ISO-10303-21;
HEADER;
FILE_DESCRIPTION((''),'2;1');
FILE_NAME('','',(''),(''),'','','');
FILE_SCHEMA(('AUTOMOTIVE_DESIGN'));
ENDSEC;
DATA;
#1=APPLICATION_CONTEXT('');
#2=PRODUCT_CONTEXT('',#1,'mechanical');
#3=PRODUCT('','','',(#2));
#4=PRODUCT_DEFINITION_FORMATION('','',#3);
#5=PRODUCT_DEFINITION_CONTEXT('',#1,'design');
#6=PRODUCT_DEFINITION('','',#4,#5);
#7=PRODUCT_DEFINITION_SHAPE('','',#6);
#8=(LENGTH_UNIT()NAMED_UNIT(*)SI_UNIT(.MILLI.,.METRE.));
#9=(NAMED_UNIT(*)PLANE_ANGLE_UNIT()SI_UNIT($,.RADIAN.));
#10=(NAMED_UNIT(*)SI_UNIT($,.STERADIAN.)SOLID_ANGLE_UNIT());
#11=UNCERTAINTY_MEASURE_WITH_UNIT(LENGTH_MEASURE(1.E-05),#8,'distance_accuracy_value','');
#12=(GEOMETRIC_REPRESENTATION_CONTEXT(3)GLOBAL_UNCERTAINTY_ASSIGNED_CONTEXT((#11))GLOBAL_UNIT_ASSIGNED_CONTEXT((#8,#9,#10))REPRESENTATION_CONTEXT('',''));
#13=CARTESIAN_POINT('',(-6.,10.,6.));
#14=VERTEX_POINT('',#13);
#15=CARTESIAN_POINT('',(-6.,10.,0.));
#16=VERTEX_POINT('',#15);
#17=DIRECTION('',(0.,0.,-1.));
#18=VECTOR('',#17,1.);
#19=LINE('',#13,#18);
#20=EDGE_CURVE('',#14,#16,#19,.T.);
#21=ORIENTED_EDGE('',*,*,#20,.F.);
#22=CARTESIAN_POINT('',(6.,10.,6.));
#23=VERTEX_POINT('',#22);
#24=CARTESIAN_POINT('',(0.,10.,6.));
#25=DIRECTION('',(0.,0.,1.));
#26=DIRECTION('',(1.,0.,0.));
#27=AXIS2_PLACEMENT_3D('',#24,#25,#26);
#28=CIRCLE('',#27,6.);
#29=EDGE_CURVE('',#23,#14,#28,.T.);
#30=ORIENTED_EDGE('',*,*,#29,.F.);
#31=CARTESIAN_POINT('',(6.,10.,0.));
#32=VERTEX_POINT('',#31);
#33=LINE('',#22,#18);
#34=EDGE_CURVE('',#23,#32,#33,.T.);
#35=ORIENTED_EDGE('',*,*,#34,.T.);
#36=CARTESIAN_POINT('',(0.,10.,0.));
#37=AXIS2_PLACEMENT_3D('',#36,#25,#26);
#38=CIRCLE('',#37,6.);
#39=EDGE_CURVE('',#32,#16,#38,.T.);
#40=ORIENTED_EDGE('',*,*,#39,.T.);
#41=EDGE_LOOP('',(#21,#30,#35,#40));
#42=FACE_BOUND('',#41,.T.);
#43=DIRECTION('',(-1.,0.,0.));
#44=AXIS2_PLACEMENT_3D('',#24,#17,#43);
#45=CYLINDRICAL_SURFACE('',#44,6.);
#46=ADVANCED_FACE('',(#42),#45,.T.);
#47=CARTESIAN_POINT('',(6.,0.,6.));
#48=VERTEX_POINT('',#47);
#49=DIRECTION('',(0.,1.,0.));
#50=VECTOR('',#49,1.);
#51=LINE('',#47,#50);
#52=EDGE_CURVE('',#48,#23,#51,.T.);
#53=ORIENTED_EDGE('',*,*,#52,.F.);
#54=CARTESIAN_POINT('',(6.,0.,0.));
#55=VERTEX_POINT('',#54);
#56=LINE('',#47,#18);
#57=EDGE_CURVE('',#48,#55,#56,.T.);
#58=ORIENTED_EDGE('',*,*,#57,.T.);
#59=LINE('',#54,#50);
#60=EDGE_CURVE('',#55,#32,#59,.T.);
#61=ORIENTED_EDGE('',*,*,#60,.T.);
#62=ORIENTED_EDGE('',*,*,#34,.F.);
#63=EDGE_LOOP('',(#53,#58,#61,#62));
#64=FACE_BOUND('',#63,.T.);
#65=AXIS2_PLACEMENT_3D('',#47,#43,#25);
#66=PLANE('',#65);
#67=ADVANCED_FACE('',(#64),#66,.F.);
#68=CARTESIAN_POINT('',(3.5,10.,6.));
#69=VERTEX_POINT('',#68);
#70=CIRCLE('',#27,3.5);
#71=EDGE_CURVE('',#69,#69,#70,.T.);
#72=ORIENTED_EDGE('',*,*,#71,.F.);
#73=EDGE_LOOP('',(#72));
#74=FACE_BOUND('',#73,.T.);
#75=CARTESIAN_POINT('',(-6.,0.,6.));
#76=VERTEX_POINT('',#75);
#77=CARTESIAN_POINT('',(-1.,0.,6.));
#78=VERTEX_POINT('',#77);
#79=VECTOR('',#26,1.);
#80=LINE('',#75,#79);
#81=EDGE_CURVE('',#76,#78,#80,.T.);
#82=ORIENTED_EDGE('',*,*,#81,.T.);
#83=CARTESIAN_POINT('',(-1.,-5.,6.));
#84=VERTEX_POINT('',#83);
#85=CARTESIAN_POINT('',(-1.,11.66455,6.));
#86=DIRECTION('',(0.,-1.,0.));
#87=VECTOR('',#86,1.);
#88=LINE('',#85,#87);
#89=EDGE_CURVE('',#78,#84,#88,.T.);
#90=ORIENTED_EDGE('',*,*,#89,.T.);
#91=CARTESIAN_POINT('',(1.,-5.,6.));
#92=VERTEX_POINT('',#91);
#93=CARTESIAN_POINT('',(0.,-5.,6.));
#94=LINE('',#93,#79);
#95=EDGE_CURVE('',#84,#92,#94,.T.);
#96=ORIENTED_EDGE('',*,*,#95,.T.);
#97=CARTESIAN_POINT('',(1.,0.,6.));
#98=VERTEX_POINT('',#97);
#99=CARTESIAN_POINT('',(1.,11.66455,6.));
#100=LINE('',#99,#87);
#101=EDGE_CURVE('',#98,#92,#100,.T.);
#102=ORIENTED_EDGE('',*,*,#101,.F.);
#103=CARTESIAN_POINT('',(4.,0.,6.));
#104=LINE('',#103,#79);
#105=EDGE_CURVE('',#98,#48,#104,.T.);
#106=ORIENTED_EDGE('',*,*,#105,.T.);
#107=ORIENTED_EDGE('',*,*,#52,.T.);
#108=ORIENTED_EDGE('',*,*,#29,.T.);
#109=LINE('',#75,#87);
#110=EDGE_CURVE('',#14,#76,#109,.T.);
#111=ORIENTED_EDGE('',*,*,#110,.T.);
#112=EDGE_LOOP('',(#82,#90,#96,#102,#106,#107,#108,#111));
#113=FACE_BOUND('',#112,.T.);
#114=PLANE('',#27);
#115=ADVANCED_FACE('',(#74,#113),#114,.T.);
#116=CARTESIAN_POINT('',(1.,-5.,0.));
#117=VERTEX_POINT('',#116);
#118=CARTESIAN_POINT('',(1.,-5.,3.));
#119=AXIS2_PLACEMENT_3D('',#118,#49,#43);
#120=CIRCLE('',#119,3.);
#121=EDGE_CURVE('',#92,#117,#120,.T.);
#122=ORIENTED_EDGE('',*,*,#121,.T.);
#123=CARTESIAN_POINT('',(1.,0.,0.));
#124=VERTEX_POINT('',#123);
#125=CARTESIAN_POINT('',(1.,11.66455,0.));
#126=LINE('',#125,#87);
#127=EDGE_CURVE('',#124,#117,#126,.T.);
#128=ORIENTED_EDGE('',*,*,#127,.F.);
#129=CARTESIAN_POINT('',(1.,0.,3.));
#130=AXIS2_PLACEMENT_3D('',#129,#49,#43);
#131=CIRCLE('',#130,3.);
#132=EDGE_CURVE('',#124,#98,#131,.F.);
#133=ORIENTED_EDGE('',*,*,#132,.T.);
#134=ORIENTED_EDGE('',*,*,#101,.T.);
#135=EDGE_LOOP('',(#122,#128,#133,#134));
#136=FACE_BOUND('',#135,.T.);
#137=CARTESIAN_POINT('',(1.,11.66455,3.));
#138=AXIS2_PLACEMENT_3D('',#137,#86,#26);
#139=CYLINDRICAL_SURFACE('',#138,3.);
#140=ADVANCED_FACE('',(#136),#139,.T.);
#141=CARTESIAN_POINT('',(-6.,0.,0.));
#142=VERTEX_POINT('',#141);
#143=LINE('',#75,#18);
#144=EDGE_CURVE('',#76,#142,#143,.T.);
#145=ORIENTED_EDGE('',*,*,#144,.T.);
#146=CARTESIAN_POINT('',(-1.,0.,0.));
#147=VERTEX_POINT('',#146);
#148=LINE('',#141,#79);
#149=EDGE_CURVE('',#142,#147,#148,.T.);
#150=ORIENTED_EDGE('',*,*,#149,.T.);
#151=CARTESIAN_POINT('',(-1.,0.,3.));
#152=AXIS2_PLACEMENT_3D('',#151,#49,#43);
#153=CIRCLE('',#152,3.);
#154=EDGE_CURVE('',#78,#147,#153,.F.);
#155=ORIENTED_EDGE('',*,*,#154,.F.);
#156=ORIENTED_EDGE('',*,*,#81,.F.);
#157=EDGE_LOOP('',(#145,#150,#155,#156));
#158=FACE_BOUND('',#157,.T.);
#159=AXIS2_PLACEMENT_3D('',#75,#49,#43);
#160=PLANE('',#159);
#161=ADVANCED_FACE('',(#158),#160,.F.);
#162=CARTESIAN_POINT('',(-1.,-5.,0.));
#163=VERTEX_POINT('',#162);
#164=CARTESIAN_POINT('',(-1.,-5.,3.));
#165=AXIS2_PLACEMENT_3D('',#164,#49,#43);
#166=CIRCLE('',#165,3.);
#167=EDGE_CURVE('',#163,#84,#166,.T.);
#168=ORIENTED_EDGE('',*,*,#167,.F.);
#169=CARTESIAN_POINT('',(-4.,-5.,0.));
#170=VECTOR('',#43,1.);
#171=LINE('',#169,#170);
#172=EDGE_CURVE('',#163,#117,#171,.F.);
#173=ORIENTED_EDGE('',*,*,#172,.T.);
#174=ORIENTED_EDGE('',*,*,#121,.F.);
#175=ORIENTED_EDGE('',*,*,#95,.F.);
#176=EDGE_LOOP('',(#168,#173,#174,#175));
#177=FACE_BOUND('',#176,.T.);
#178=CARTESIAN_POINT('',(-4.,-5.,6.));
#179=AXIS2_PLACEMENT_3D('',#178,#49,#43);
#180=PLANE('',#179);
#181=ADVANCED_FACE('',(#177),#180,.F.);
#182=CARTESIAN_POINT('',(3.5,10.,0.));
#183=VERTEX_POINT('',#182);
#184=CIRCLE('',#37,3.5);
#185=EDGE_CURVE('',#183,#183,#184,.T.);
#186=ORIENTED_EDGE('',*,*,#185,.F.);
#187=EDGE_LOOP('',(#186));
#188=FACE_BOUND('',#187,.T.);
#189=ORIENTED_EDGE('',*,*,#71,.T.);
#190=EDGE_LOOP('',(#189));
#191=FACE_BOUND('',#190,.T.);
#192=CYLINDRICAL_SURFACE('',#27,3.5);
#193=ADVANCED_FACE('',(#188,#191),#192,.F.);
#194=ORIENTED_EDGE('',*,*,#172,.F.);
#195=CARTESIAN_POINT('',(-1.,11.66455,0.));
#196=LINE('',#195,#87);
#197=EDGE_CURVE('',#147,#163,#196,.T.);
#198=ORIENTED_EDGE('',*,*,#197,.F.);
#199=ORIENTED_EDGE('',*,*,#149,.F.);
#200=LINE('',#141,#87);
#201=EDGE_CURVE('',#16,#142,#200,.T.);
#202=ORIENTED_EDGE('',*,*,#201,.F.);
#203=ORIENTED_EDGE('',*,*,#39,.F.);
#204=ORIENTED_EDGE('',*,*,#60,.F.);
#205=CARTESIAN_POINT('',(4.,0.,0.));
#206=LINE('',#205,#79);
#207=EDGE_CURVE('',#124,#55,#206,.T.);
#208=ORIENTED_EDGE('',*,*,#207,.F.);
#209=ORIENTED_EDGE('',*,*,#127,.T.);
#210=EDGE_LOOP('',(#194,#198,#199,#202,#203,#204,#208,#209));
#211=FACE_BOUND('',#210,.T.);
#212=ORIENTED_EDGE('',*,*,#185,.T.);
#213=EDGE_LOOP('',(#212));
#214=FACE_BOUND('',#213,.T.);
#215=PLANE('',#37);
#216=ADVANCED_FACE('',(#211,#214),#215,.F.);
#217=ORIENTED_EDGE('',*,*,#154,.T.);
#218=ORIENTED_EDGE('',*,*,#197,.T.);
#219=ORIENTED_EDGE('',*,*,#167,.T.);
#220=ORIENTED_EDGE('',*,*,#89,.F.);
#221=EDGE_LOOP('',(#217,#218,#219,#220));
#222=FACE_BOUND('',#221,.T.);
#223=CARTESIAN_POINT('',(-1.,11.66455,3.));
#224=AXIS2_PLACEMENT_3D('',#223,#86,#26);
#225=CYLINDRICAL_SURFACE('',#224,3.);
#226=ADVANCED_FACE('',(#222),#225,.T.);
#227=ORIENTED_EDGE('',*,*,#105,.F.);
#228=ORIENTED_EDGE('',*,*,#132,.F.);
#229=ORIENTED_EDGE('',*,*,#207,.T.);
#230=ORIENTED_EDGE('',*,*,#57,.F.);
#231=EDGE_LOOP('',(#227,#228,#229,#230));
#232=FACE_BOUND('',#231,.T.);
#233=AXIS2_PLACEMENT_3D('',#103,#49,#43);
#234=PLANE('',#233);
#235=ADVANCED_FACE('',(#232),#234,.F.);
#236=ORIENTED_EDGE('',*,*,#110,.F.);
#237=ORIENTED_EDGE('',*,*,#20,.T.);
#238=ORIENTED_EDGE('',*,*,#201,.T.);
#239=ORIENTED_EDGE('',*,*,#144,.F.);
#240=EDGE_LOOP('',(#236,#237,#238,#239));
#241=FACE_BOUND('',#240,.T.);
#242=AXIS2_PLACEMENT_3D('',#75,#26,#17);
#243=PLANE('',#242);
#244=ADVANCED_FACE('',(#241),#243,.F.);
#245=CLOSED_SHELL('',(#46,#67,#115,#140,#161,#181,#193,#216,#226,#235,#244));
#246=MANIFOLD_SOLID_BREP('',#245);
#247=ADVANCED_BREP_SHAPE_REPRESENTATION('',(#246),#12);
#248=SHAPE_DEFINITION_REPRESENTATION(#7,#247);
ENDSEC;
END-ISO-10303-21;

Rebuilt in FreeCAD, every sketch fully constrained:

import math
import FreeCAD as App
import Part
import Sketcher


def add_polygon(sketch, points):
    """Adds a closed chain of lines whose ends are joined by coincident constraints."""
    first, n = sketch.GeometryCount, len(points)
    for a, b in zip(points, points[1:] + points[:1]):
        sketch.addGeometry(Part.LineSegment(App.Vector(*a, 0), App.Vector(*b, 0)), False)
    for i in range(n):
        sketch.addConstraint(Sketcher.Constraint("Coincident", first + i, 2, first + (i + 1) % n, 1))

doc = App.newDocument("Part")
body = doc.addObject("PartDesign::Body", "Body")

# Sketch on XY plane
sketch1 = body.newObject("Sketcher::SketchObject", "Sketch")
sketch1.AttachmentSupport = (doc.getObject("XY_Plane"), [""])
sketch1.MapMode = "FlatFace"
sketch1.addGeometry([
    Part.LineSegment(App.Vector(-4, -5, 0), App.Vector(4, -5, 0)),  # 0
    Part.LineSegment(App.Vector(4, -5, 0), App.Vector(4, 0, 0)),  # 1
    Part.LineSegment(App.Vector(4, 0, 0), App.Vector(6, 0, 0)),  # 2
    Part.LineSegment(App.Vector(6, 0, 0), App.Vector(6, 10, 0)),  # 3
    Part.ArcOfCircle(Part.Circle(App.Vector(0, 10, 0), App.Vector(0, 0, 1), 6), math.radians(0), math.radians(180)),  # 4
    Part.LineSegment(App.Vector(-6, 10, 0), App.Vector(-6, 0, 0)),  # 5
    Part.LineSegment(App.Vector(-6, 0, 0), App.Vector(-4, 0, 0)),  # 6
    Part.LineSegment(App.Vector(-4, 0, 0), App.Vector(-4, -5, 0)),  # 7
], False)
sketch1.addConstraint([
    Sketcher.Constraint("Coincident", 0, 2, 1, 1),
    Sketcher.Constraint("Coincident", 1, 2, 2, 1),
    Sketcher.Constraint("Coincident", 2, 2, 3, 1),
    Sketcher.Constraint("Tangent", 3, 2, 4, 1),
    Sketcher.Constraint("Tangent", 4, 2, 5, 1),
    Sketcher.Constraint("Coincident", 5, 2, 6, 1),
    Sketcher.Constraint("Coincident", 6, 2, 7, 1),
    Sketcher.Constraint("Coincident", 7, 2, 0, 1),
    Sketcher.Constraint("Horizontal", 0),
    Sketcher.Constraint("Vertical", 1),
    Sketcher.Constraint("Horizontal", 2),
    Sketcher.Constraint("Vertical", 3),
    Sketcher.Constraint("Vertical", 5),
    Sketcher.Constraint("Horizontal", 6),
    Sketcher.Constraint("Vertical", 7),
    Sketcher.Constraint("Symmetric", 2, 2, 5, 2, -1, 1),
    Sketcher.Constraint("Symmetric", 1, 2, 6, 2, -2),
    Sketcher.Constraint("Radius", 4, 6.0),
    Sketcher.Constraint("DistanceX", 0, 1, 0, 2, 8.0),
    Sketcher.Constraint("DistanceY", 1, 1, 1, 2, 5.0),
    Sketcher.Constraint("DistanceY", 3, 1, 3, 2, 10.0),
])
pad1 = body.newObject("PartDesign::Pad", "Pad")
pad1.Profile = sketch1
pad1.Length = 6

# Sketch on XY plane
sketch2 = body.newObject("Sketcher::SketchObject", "Sketch001")
sketch2.AttachmentSupport = (doc.getObject("XY_Plane"), [""])
sketch2.MapMode = "FlatFace"
sketch2.AttachmentOffset = App.Placement(App.Vector(0, 0, 6), App.Rotation())
sketch2.addGeometry(Part.Circle(App.Vector(0, 10, 0), App.Vector(0, 0, 1), 3.5), False)
sketch2.addConstraint([
    Sketcher.Constraint("PointOnObject", 0, 3, -2),
    Sketcher.Constraint("Diameter", 0, 7.0),
    Sketcher.Constraint("DistanceY", -1, 1, 0, 3, 10.0),
])
doc.recompute()
hole = body.newObject("PartDesign::Hole", "Hole")
hole.Profile = sketch2
hole.ThreadType = "None"
hole.Diameter = 7
hole.DepthType = "Dimension"
hole.Depth = 19
hole.DrillPoint = "Angled"
hole.DrillPointAngle = 118

# Sketch on XZ plane
sketch3 = body.newObject("Sketcher::SketchObject", "Sketch002")
sketch3.AttachmentSupport = (doc.getObject("XZ_Plane"), [""])
sketch3.MapMode = "FlatFace"
sketch3.AttachmentOffset = App.Placement(App.Vector(0, 0, 5), App.Rotation())
add_polygon(sketch3, [(-4.6, 6.4), (-4.6, -0.5), (4.8, -0.5), (4.8, 6.4)])  # lines 0-3
sketch3.addGeometry(Part.ArcOfCircle(Part.Circle(App.Vector(-1, 3, 0), App.Vector(0, 0, 1), 3), math.radians(90), math.radians(270)), False)  # 4
sketch3.addGeometry(Part.LineSegment(App.Vector(-1, 6, 0), App.Vector(1, 6, 0)), False)  # 5
sketch3.addGeometry(Part.ArcOfCircle(Part.Circle(App.Vector(1, 3, 0), App.Vector(0, 0, 1), 3), math.radians(-90), math.radians(90)), False)  # 6
sketch3.addGeometry(Part.LineSegment(App.Vector(1, 0, 0), App.Vector(-1, 0, 0)), False)  # 7
sketch3.addConstraint([
    Sketcher.Constraint("Tangent", 4, 1, 5, 1),
    Sketcher.Constraint("Tangent", 5, 2, 6, 2),
    Sketcher.Constraint("Tangent", 6, 1, 7, 1),
    Sketcher.Constraint("Tangent", 7, 2, 4, 2),
    Sketcher.Constraint("Vertical", 0),
    Sketcher.Constraint("Horizontal", 1),
    Sketcher.Constraint("Vertical", 2),
    Sketcher.Constraint("Horizontal", 3),
    Sketcher.Constraint("Horizontal", 5),
    Sketcher.Constraint("Horizontal", 7),
    Sketcher.Constraint("Symmetric", 6, 1, 7, 2, -1, 1),
    Sketcher.Constraint("Radius", 4, 3.0),
    Sketcher.Constraint("DistanceX", 5, 1, 5, 2, 2.0),
    Sketcher.Constraint("DistanceY", 0, 2, 0, 1, 6.865018),
    Sketcher.Constraint("DistanceX", 1, 1, 1, 2, 9.430443),
    Sketcher.Constraint("DistanceX", 0, 2, -1, 1, 4.603137),
    Sketcher.Constraint("DistanceY", 0, 2, -1, 1, 0.489796),
])
pocket1 = body.newObject("PartDesign::Pocket", "Pocket")
pocket1.Profile = sketch3
pocket1.Type = "TwoLengths"
pocket1.Length = 23.649503
pocket1.Length2 = 5
pocket1.Reversed = True

doc.recompute()
